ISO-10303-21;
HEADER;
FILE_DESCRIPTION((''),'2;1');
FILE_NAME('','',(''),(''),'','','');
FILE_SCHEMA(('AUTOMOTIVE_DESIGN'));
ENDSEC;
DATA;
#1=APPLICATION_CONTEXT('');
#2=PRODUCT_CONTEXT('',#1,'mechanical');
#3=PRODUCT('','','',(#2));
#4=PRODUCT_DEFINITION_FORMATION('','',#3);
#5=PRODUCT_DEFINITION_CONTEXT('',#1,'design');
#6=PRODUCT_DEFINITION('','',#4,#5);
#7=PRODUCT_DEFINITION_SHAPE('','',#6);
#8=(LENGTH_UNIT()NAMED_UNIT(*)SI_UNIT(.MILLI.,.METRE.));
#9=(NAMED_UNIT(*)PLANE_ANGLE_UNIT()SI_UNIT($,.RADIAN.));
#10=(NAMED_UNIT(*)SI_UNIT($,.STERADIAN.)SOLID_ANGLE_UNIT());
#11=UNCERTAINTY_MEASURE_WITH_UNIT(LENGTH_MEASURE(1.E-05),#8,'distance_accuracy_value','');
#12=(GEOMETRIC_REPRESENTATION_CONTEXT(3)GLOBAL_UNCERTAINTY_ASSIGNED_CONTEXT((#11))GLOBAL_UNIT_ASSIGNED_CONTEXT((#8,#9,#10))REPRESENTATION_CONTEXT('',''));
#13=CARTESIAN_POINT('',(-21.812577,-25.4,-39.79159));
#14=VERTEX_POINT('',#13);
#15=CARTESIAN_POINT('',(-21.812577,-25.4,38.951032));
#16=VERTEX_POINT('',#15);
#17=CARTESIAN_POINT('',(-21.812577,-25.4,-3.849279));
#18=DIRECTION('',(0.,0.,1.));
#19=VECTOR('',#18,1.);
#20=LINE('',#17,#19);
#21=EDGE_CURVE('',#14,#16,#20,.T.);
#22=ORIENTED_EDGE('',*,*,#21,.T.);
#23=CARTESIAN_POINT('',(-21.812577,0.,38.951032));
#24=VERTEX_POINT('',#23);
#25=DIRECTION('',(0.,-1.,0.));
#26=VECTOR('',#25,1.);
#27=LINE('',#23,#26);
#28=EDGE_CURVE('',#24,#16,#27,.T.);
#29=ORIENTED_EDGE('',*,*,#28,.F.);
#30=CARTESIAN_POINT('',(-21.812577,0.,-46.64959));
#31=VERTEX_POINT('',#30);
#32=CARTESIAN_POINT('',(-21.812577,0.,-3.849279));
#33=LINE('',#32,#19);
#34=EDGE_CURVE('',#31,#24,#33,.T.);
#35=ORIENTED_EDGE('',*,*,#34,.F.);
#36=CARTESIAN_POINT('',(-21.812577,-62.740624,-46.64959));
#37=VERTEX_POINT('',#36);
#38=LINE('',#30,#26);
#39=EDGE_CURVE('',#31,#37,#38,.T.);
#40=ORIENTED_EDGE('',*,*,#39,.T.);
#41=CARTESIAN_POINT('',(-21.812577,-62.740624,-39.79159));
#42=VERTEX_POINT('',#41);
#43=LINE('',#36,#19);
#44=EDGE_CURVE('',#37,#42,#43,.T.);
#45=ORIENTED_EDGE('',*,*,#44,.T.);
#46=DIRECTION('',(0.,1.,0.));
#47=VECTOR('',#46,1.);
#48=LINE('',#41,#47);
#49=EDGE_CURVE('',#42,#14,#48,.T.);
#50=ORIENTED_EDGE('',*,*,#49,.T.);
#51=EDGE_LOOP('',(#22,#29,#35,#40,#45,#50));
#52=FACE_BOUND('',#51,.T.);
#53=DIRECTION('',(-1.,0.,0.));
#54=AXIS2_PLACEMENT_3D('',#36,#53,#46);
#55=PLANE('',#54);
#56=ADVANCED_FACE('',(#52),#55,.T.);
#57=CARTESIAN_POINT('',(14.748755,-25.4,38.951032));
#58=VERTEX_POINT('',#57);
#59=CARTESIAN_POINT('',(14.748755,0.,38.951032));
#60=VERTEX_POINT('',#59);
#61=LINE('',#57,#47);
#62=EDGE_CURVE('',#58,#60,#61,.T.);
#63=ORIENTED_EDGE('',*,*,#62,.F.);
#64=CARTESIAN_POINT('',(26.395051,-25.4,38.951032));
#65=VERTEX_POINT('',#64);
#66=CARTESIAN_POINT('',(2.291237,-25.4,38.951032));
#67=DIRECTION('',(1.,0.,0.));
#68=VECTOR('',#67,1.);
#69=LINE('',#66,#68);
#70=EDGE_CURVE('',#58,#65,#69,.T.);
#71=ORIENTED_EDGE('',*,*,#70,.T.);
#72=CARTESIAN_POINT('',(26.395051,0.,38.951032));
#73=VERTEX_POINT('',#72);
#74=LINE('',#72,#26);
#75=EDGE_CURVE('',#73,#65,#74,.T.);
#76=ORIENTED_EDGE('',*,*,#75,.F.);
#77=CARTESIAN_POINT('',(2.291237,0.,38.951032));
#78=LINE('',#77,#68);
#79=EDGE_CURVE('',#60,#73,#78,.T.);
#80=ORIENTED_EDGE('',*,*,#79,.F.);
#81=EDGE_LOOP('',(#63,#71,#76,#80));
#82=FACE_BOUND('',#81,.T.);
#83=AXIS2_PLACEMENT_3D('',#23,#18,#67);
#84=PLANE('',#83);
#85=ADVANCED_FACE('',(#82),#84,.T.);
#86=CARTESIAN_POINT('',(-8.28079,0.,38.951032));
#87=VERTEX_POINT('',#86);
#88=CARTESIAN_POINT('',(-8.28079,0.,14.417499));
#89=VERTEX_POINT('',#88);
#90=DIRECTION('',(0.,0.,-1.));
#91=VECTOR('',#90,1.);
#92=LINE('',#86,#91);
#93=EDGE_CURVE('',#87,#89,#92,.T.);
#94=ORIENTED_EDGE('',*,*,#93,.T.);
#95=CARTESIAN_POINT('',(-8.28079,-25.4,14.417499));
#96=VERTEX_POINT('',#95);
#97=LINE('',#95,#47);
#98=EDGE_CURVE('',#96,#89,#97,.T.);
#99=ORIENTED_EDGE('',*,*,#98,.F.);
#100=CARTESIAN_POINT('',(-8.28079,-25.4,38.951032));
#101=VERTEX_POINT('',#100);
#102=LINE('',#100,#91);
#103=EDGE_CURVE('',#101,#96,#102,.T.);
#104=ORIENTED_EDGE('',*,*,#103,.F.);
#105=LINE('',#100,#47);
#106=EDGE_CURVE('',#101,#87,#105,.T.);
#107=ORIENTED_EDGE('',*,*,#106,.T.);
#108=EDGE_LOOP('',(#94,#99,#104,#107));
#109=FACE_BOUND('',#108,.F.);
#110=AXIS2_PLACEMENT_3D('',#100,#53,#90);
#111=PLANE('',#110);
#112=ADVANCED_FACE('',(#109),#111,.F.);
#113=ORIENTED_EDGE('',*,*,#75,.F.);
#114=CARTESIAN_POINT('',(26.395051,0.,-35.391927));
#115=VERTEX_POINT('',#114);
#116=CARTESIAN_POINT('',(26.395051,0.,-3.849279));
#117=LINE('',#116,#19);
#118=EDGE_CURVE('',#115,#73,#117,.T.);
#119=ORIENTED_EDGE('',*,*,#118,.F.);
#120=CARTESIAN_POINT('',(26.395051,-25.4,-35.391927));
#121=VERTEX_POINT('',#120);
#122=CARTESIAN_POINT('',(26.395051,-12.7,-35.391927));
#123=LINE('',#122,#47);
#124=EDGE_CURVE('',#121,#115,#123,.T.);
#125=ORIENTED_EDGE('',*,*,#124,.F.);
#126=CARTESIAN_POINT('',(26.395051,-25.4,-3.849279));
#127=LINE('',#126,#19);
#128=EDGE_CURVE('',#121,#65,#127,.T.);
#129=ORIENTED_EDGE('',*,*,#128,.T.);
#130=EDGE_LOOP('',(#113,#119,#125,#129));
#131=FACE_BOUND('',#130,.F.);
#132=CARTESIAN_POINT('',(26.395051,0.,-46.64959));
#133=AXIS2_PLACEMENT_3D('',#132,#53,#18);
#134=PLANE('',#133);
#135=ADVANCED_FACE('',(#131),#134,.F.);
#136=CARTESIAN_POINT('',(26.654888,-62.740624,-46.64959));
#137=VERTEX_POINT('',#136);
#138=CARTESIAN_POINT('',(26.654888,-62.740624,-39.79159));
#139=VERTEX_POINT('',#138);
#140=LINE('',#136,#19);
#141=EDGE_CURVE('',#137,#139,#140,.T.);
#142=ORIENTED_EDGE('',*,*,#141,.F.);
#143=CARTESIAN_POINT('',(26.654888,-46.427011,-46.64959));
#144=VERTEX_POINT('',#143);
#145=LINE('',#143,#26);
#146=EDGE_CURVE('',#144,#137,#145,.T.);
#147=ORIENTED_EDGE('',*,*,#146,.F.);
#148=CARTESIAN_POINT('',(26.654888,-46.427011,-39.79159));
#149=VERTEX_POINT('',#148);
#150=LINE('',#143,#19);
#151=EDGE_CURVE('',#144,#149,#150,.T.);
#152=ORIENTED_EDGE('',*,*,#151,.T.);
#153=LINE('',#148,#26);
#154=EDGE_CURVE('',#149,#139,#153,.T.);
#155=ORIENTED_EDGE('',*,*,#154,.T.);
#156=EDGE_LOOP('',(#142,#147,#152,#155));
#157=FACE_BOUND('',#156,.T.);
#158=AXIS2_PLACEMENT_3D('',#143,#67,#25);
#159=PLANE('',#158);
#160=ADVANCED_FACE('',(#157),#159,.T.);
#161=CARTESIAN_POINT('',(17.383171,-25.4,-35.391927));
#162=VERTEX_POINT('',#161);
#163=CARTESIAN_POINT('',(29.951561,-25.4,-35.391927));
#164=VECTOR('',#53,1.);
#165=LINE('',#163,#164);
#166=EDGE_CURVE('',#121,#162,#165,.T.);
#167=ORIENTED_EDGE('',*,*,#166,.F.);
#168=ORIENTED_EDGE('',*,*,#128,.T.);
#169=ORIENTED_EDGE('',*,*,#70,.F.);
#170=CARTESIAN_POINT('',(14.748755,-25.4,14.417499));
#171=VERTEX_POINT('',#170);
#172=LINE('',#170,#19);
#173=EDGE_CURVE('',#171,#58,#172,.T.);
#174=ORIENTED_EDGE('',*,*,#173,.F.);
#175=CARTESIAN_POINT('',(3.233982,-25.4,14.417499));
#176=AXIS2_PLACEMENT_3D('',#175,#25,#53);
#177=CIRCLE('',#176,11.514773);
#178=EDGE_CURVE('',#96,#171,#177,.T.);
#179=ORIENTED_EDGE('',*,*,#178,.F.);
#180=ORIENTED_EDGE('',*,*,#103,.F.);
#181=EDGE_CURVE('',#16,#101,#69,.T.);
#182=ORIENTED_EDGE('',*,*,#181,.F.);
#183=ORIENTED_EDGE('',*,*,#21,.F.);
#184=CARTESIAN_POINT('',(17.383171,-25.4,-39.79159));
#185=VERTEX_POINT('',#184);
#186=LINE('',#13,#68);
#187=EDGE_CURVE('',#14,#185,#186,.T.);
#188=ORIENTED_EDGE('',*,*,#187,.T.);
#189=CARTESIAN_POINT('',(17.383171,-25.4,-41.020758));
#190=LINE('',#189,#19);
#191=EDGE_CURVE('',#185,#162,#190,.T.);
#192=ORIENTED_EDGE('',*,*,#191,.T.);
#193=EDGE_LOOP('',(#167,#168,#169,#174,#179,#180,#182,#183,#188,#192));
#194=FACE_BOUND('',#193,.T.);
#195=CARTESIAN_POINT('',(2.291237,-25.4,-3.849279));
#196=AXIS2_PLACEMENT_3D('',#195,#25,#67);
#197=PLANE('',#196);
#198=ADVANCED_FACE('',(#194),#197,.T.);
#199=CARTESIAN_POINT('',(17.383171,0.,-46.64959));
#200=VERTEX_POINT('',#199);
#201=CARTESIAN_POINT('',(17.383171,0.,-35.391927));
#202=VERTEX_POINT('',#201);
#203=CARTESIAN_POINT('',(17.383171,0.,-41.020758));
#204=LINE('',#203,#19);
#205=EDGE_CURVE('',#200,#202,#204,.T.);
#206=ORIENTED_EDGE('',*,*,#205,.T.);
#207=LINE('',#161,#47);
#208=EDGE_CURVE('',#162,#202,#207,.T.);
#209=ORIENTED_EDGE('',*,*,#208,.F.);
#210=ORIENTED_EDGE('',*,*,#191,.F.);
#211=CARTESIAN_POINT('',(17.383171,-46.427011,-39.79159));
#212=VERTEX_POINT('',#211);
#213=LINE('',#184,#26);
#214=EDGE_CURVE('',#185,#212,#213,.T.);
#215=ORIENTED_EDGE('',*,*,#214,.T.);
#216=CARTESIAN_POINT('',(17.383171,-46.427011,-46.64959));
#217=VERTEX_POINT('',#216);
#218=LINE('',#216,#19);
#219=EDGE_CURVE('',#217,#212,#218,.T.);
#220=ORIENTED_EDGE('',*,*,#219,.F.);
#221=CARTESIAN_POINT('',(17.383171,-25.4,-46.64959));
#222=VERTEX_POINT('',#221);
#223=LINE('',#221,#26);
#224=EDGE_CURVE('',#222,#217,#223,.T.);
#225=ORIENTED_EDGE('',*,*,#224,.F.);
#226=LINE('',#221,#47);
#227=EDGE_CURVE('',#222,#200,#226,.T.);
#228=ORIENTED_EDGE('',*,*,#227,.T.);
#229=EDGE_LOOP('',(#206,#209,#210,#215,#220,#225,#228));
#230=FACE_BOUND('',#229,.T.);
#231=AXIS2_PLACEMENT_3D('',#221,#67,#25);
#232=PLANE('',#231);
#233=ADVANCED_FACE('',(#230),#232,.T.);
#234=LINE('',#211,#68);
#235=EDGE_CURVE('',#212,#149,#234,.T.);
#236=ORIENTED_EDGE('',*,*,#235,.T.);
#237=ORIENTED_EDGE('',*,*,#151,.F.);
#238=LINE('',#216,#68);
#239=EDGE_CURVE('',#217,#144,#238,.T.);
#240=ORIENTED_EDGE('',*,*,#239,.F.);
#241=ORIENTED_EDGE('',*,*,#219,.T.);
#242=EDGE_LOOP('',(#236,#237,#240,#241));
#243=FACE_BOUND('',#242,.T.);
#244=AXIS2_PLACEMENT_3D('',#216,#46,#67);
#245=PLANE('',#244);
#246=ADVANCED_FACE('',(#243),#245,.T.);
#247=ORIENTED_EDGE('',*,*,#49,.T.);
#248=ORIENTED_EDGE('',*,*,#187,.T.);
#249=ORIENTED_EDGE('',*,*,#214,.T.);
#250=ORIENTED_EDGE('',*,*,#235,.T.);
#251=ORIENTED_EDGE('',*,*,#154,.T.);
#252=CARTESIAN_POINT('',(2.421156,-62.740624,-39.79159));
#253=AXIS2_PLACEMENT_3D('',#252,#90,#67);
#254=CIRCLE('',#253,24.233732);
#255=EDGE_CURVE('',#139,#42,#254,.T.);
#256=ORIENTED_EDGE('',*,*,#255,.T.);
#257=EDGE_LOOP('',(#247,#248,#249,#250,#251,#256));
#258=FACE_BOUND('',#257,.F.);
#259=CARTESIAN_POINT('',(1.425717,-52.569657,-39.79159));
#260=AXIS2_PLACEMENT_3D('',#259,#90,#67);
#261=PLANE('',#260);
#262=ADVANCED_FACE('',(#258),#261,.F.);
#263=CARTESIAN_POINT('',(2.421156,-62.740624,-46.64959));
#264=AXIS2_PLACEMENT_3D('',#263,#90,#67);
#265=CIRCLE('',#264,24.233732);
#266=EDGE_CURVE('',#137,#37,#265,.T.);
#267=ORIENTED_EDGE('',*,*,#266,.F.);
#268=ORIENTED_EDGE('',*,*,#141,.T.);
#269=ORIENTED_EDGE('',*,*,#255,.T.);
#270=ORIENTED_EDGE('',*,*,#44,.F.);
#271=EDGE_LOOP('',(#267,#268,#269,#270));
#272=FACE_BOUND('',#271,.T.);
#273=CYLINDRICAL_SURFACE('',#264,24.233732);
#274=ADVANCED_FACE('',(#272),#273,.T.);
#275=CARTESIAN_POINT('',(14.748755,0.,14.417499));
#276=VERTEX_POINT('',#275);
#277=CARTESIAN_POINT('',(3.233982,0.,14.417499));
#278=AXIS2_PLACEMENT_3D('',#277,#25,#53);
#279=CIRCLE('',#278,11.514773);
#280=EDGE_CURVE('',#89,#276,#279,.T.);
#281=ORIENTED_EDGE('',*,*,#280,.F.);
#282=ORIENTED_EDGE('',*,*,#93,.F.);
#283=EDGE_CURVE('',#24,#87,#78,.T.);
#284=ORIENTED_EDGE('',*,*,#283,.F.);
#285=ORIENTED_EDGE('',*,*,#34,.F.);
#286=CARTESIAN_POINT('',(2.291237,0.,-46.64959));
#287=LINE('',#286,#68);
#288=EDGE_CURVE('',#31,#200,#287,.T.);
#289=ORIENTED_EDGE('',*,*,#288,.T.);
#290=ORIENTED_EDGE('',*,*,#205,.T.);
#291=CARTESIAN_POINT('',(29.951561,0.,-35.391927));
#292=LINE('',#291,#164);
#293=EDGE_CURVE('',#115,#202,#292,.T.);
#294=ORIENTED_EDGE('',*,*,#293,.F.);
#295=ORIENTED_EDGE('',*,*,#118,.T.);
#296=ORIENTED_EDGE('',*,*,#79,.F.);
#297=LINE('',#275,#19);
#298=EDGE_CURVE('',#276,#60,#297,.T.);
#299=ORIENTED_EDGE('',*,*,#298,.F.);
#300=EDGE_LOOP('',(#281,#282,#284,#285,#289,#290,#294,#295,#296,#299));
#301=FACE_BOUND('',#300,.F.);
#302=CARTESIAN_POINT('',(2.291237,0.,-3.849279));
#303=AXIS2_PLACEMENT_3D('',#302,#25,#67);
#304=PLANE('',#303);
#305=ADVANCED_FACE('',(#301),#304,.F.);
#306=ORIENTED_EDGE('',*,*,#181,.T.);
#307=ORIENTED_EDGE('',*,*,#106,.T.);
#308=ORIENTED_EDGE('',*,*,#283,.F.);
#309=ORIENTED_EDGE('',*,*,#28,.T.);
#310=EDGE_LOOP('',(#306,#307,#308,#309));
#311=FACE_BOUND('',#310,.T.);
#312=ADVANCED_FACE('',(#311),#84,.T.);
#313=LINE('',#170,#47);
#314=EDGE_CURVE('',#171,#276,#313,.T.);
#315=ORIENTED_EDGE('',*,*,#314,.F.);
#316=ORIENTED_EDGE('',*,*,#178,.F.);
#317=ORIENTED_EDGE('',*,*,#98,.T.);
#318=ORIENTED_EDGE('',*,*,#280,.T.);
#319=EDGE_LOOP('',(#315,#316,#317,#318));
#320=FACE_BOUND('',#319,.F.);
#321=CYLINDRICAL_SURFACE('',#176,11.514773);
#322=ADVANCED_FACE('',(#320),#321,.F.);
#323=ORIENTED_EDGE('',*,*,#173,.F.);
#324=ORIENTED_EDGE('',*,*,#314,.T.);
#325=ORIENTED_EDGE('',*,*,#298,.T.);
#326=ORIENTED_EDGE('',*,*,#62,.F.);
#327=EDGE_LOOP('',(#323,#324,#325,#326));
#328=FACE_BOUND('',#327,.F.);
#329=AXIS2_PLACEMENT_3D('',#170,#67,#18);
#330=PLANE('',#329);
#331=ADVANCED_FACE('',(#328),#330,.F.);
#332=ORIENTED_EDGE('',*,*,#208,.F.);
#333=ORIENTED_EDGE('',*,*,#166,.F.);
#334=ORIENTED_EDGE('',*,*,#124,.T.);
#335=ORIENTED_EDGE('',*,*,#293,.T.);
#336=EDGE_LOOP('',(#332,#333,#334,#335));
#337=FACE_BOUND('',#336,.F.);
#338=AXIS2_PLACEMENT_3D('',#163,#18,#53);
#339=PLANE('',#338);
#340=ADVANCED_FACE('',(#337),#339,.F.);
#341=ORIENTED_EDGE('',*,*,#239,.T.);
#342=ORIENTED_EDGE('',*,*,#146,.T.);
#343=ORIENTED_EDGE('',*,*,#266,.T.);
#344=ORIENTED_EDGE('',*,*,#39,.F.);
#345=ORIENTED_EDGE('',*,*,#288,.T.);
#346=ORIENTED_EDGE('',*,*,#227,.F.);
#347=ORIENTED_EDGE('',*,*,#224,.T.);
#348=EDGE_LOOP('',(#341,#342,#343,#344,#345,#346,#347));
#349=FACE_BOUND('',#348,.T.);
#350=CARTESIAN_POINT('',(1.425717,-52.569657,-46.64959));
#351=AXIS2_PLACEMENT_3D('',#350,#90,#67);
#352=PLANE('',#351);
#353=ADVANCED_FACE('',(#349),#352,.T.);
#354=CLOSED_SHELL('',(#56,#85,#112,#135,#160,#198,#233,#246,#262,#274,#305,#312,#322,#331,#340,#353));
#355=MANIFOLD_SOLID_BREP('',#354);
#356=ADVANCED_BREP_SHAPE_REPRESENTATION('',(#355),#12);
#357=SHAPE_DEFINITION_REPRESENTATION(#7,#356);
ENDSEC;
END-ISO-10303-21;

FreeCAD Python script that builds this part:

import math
import FreeCAD as App
import Part
import Sketcher

V = App.Vector
Q = App.Units.Quantity


def add_polygon(sketch, points):
    """Adds a closed chain of lines whose ends are joined by coincident constraints."""
    first, n = sketch.GeometryCount, len(points)
    for a, b in zip(points, points[1:] + points[:1]):
        sketch.addGeometry(Part.LineSegment(App.Vector(*a, 0), App.Vector(*b, 0)), False)
    for i in range(n):
        sketch.addConstraint(Sketcher.Constraint("Coincident", first + i, 2, first + (i + 1) % n, 1))

doc = App.newDocument("Part")
body = doc.addObject("PartDesign::Body", "Body")

# Sketch on XZ plane
sketch1 = body.newObject("Sketcher::SketchObject", "Sketch")
sketch1.AttachmentSupport = (doc.getObject("XZ_Plane"), [""])
sketch1.MapMode = "FlatFace"
add_polygon(sketch1, [(-22, 39), (-22, -47), (26, -47), (26, 39)])  # lines 0-3
sketch1.addConstraint([
    Sketcher.Constraint("Vertical", 0),
    Sketcher.Constraint("Horizontal", 1),
    Sketcher.Constraint("Vertical", 2),
    Sketcher.Constraint("Horizontal", 3),
    Sketcher.Constraint("DistanceY", 0, 2, 0, 1, Q("85.600622 mm")),
    Sketcher.Constraint("DistanceX", 1, 1, 1, 2, Q("48.207628 mm")),
    Sketcher.Constraint("DistanceY", 0, 2, -1, 1, Q("46.64959 mm")),
    Sketcher.Constraint("DistanceX", -1, 1, 1, 2, Q("26.395051 mm")),
])
pad1 = body.newObject("PartDesign::Pad", "Pad")
pad1.Profile = sketch1
pad1.Length = Q("1 in")

# Sketch on XZ plane
sketch2 = body.newObject("Sketcher::SketchObject", "Sketch001")
sketch2.AttachmentSupport = (doc.getObject("XZ_Plane"), [""])
sketch2.MapMode = "FlatFace"
sketch2.AttachmentOffset = App.Placement(V(0, 0, 1 * 25.4), App.Rotation())
sketch2.addGeometry([
    Part.LineSegment(V(15, 39, 0), V(-8, 39, 0)),
    Part.LineSegment(V(-8, 39, 0), V(-8, 14, 0)),
    Part.ArcOfCircle(Part.Circle(V(3, 14, 0), V(0, 0, 1), 12), math.radians(180), math.radians(360)),
    Part.LineSegment(V(15, 14, 0), V(15, 39, 0)),
], False)
sketch2.addConstraint([
    Sketcher.Constraint("Coincident", 0, 2, 1, 1),
    Sketcher.Constraint("Tangent", 1, 2, 2, 1),
    Sketcher.Constraint("Tangent", 2, 2, 3, 1),
    Sketcher.Constraint("Coincident", 3, 2, 0, 1),
    Sketcher.Constraint("Horizontal", 0),
    Sketcher.Constraint("Vertical", 1),
    Sketcher.Constraint("Vertical", 3),
    Sketcher.Constraint("Radius", 2, Q("11.514773 mm")),
    Sketcher.Constraint("DistanceY", -1, 1, 2, 3, Q("14.417499 mm")),
    Sketcher.Constraint("DistanceY", 1, 2, 1, 1, Q("24.533533 mm")),
    Sketcher.Constraint("DistanceX", 0, 2, -1, 1, Q("8.28079 mm")),
])
pocket1 = body.newObject("PartDesign::Pocket", "Pocket")
pocket1.Profile = sketch2
pocket1.Length = Q("1 in")

# Sketch on XZ plane
sketch3 = body.newObject("Sketcher::SketchObject", "Sketch002")
sketch3.AttachmentSupport = (doc.getObject("XZ_Plane"), [""])
sketch3.MapMode = "FlatFace"
sketch3.AttachmentOffset = App.Placement(V(0, 0, 1 * 25.4), App.Rotation())
add_polygon(sketch3, [(17, -35), (17, -47), (30, -47), (30, -35)])  # lines 0-3
sketch3.addConstraint([
    Sketcher.Constraint("Vertical", 0),
    Sketcher.Constraint("Horizontal", 1),
    Sketcher.Constraint("Vertical", 2),
    Sketcher.Constraint("Horizontal", 3),
    Sketcher.Constraint("DistanceX", 1, 1, 1, 2, Q("12.56839 mm")),
    Sketcher.Constraint("DistanceY", 0, 2, 0, 1, Q("11.257663 mm")),
    Sketcher.Constraint("DistanceX", -1, 1, 0, 2, Q("17.383171 mm")),
    Sketcher.Constraint("DistanceY", 0, 2, -1, 1, Q("46.64959 mm")),
])
pocket2 = body.newObject("PartDesign::Pocket", "Pocket001")
pocket2.Profile = sketch3
pocket2.Length = Q("1 in")

# Sketch on XY plane
sketch4 = body.newObject("Sketcher::SketchObject", "Sketch003")
sketch4.AttachmentSupport = (doc.getObject("XY_Plane"), [""])
sketch4.MapMode = "FlatFace"
sketch4.AttachmentOffset = App.Placement(V(0, 0, -46.64959), App.Rotation())
sketch4.addGeometry([
    Part.LineSegment(V(-22, -63, 0), V(-22, -25, 0)),  # 0
    Part.LineSegment(V(-22, -25, 0), V(17, -25, 0)),  # 1
    Part.LineSegment(V(17, -25, 0), V(17, -46, 0)),  # 2
    Part.LineSegment(V(17, -46, 0), V(27, -46, 0)),  # 3
    Part.LineSegment(V(27, -46, 0), V(27, -63, 0)),  # 4
    Part.ArcOfCircle(Part.Circle(V(2, -63, 0), V(0, 0, 1), 24), math.radians(180), math.radians(360)),  # 5
], False)
sketch4.addConstraint([
    Sketcher.Constraint("Coincident", 0, 2, 1, 1),
    Sketcher.Constraint("Coincident", 1, 2, 2, 1),
    Sketcher.Constraint("Coincident", 2, 2, 3, 1),
    Sketcher.Constraint("Coincident", 3, 2, 4, 1),
    Sketcher.Constraint("Tangent", 4, 2, 5, 2),
    Sketcher.Constraint("Tangent", 5, 1, 0, 1),
    Sketcher.Constraint("Vertical", 0),
    Sketcher.Constraint("Horizontal", 1),
    Sketcher.Constraint("Vertical", 2),
    Sketcher.Constraint("Horizontal", 3),
    Sketcher.Constraint("Vertical", 4),
    Sketcher.Constraint("DistanceY", 0, 2, -1, 1, Q("1 in")),
    Sketcher.Constraint("Radius", 5, Q("24.233732 mm")),
    Sketcher.Constraint("DistanceX", 1, 1, 1, 2, Q("39.195748 mm")),
    Sketcher.Constraint("DistanceY", 2, 2, 2, 1, Q("21.027011 mm")),
    Sketcher.Constraint("DistanceY", 0, 1, 0, 2, Q("37.340624 mm")),
    Sketcher.Constraint("DistanceX", -1, 1, 1, 2, Q("17.383171 mm")),
])
pad2 = body.newObject("PartDesign::Pad", "Pad001")
pad2.Profile = sketch4
pad2.Length = Q("0.27 in")

doc.recompute()
